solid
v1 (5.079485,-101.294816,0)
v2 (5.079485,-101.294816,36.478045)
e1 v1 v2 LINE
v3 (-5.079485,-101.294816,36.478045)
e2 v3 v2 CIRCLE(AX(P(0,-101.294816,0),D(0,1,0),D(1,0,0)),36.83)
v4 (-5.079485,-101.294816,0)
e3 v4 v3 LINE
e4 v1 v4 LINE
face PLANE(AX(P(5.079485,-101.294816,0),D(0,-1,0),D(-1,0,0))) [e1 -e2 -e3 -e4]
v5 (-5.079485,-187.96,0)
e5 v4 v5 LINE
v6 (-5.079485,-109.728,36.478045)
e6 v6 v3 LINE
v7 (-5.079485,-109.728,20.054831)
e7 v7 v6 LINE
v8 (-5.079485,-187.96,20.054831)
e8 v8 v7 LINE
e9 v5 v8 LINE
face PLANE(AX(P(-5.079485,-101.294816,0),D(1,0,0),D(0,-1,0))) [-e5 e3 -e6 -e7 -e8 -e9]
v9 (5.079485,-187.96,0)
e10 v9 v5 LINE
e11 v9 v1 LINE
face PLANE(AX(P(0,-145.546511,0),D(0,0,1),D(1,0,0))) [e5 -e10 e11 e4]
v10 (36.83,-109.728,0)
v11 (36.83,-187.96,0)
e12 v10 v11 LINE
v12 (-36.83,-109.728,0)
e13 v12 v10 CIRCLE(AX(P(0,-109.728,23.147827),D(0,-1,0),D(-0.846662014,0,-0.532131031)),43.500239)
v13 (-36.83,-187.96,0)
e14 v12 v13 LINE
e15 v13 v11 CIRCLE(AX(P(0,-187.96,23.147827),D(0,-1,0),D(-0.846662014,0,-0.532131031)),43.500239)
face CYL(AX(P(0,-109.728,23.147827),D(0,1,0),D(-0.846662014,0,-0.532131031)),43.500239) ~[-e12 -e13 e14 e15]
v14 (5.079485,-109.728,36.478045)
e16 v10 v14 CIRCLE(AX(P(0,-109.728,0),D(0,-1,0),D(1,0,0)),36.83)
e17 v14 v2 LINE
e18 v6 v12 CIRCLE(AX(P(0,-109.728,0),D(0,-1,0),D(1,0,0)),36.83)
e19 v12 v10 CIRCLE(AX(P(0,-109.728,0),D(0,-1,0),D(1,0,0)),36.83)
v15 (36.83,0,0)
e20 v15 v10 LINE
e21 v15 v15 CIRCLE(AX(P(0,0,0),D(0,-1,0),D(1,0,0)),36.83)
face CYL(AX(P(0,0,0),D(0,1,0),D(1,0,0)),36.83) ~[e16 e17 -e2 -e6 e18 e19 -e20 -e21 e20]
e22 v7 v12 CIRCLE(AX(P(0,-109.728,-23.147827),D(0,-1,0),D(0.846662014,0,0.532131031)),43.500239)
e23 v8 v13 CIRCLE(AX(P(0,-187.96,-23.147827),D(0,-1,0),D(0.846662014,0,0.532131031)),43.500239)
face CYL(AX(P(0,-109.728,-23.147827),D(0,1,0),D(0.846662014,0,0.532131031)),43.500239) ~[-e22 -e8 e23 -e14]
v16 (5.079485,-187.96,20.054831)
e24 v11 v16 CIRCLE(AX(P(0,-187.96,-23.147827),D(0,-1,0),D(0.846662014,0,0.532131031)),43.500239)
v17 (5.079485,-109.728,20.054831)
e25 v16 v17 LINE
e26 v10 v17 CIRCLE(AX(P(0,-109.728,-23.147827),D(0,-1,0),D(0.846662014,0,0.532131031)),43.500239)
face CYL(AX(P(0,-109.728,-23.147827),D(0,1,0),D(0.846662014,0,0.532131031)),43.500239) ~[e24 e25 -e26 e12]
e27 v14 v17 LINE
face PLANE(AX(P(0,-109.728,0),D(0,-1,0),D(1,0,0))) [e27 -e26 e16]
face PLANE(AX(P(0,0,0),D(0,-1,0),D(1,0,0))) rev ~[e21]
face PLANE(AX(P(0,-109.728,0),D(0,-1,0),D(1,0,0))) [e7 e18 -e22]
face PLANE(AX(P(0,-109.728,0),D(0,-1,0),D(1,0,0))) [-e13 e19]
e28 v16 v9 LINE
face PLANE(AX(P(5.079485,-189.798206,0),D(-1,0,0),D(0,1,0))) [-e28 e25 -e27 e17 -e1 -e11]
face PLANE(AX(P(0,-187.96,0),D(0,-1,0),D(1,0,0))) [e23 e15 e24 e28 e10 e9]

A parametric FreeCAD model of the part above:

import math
import FreeCAD as App
import Part
import Sketcher

V = App.Vector
Q = App.Units.Quantity


def add_polygon(sketch, points):
    """Adds a closed chain of lines whose ends are joined by coincident constraints."""
    first, n = sketch.GeometryCount, len(points)
    for a, b in zip(points, points[1:] + points[:1]):
        sketch.addGeometry(Part.LineSegment(App.Vector(*a, 0), App.Vector(*b, 0)), False)
    for i in range(n):
        sketch.addConstraint(Sketcher.Constraint("Coincident", first + i, 2, first + (i + 1) % n, 1))

doc = App.newDocument("Part")
body = doc.addObject("PartDesign::Body", "Body")

# Sketch on XZ plane
sketch1 = body.newObject("Sketcher::SketchObject", "Sketch")
sketch1.AttachmentSupport = (doc.getObject("XZ_Plane"), [""])
sketch1.MapMode = "FlatFace"
sketch1.addGeometry(Part.Circle(V(0, 0, 0), V(0, 0, 1), 37), False)
sketch1.addConstraint(Sketcher.Constraint("Coincident", 0, 3, -1, 1))
sketch1.addConstraint(Sketcher.Constraint("Diameter", 0, Q("2.9 in")))
pad1 = body.newObject("PartDesign::Pad", "Pad")
pad1.Profile = sketch1
pad1.Length = Q("4.32 in")

# Sketch on XZ plane
sketch2 = body.newObject("Sketcher::SketchObject", "Sketch001")
sketch2.AttachmentSupport = (doc.getObject("XZ_Plane"), [""])
sketch2.MapMode = "FlatFace"
sketch2.AttachmentOffset = App.Placement(V(0, 0, 4.32 * 25.4), App.Rotation())
sketch2.addGeometry(Part.ArcOfCircle(Part.Circle(V(0, 23, 0), V(0, 0, 1), 44), math.radians(-148), math.radians(-32)), False)
sketch2.addGeometry(Part.ArcOfCircle(Part.Circle(V(0, -23, 0), V(0, 0, 1), 44), math.radians(32), math.radians(148)), False)
sketch2.addConstraint(Sketcher.Constraint("Coincident", 0, 1, 1, 2))
sketch2.addConstraint(Sketcher.Constraint("Coincident", 1, 1, 0, 2))
sketch2.addConstraint(Sketcher.Constraint("Equal", 0, 1))
sketch2.addConstraint(Sketcher.Constraint("Symmetric", 0, 3, 1, 3, -1, 1))
sketch2.addConstraint(Sketcher.Constraint("PointOnObject", 0, 3, -2))
sketch2.addConstraint(Sketcher.Constraint("DistanceX", 0, 1, 1, 1, Q("2.9 in")))
sketch2.addConstraint(Sketcher.Constraint("Radius", 0, Q("43.500239 mm")))
pad2 = body.newObject("PartDesign::Pad", "Pad001")
pad2.Profile = sketch2
pad2.Length = Q("3.08 in")

# Sketch on XY plane
sketch3 = body.newObject("Sketcher::SketchObject", "Sketch002")
sketch3.AttachmentSupport = (doc.getObject("XY_Plane"), [""])
sketch3.MapMode = "FlatFace"
add_polygon(sketch3, [(-5, -101), (-5, -190), (5, -190), (5, -101)])  # lines 0-3
sketch3.addConstraint(Sketcher.Constraint("Vertical", 0))
sketch3.addConstraint(Sketcher.Constraint("Horizontal", 1))
sketch3.addConstraint(Sketcher.Constraint("Vertical", 2))
sketch3.addConstraint(Sketcher.Constraint("Horizontal", 3))
sketch3.addConstraint(Sketcher.Constraint("DistanceX", 1, 1, 1, 2, Q("10.15897 mm")))
sketch3.addConstraint(Sketcher.Constraint("DistanceY", 0, 2, 0, 1, Q("88.50339 mm")))
sketch3.addConstraint(Sketcher.Constraint("DistanceX", 0, 2, -1, 1, Q("5.079485 mm")))
sketch3.addConstraint(Sketcher.Constraint("DistanceY", 0, 2, -1, 1, Q("189.798206 mm")))
pocket1 = body.newObject("PartDesign::Pocket", "Pocket")
pocket1.Profile = sketch3
pocket1.Type = "ThroughAll"
pocket1.Reversed = True

doc.recompute()
